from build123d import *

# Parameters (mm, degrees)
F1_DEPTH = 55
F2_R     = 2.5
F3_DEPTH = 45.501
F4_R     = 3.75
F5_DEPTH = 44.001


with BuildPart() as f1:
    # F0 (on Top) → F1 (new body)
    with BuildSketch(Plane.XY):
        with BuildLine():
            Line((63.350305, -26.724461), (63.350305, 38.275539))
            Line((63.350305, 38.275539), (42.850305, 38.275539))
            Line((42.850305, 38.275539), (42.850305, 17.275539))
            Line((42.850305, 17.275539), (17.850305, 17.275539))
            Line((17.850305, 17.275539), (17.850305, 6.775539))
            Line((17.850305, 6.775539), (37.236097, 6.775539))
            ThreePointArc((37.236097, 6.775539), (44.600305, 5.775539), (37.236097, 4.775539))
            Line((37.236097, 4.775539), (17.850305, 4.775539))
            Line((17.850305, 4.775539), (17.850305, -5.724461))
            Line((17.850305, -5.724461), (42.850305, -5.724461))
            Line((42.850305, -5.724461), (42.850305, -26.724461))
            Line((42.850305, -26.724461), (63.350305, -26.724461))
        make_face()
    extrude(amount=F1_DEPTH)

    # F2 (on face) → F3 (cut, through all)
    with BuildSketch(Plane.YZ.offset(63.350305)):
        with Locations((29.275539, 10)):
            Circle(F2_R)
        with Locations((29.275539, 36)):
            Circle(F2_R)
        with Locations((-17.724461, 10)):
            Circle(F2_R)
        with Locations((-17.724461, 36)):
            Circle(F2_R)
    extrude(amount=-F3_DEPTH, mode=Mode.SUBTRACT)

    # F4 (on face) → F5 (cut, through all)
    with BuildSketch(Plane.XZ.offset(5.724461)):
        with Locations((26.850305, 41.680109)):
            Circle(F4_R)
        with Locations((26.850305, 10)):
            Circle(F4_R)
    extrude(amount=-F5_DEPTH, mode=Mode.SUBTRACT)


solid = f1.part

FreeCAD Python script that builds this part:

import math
import FreeCAD as App
import Part
import Sketcher
Q = App.Units.Quantity

doc = App.newDocument("Part")
params = doc.addObject("Spreadsheet::Sheet", "Params")
for row, (alias, value) in enumerate([
    ("sketch1_width", "25 mm"),
    ("sketch1_height", "65 mm"),
    ("sketch1_height2", "21 mm"),
    ("sketch1_radius", "3.75 mm"),
    ("sketch1_width2", "20.5 mm"),
    ("pad1_length", "55 mm"),
    ("sketch2_diameter", "5 mm"),
    ("sketch3_diameter", "7.5 mm"),
], start=1):
    params.set(f"A{row}", alias)
    params.set(f"B{row}", "=" + value)
    params.setAlias(f"B{row}", alias)

body = doc.addObject("PartDesign::Body", "Body")

# Sketch on XY plane
sketch1 = doc.addObject("Sketcher::SketchObject", "Sketch")
body.addObject(sketch1)
sketch1.AttachmentSupport = (doc.XY_Plane, [""])
sketch1.MapMode = "FlatFace"
sketch1.addGeometry([
    Part.LineSegment(App.Vector(63.4, -26.7, 0), App.Vector(63.4, 38.3, 0)),  # 0
    Part.LineSegment(App.Vector(63.4, 38.3, 0), App.Vector(42.9, 38.3, 0)),  # 1
    Part.LineSegment(App.Vector(42.9, 38.3, 0), App.Vector(42.9, 17.3, 0)),  # 2
    Part.LineSegment(App.Vector(42.9, 17.3, 0), App.Vector(17.9, 17.3, 0)),  # 3
    Part.LineSegment(App.Vector(17.9, 17.3, 0), App.Vector(17.9, 6.8, 0)),  # 4
    Part.LineSegment(App.Vector(17.9, 6.8, 0), App.Vector(37.2, 6.8, 0)),  # 5
    Part.ArcOfCircle(Part.Circle(App.Vector(40.9, 5.8, 0), App.Vector(0, 0, 1), 3.7), math.radians(-165), math.radians(165)),  # 6
    Part.LineSegment(App.Vector(37.2, 4.8, 0), App.Vector(17.9, 4.8, 0)),  # 7
    Part.LineSegment(App.Vector(17.9, 4.8, 0), App.Vector(17.9, -5.7, 0)),  # 8
    Part.LineSegment(App.Vector(17.9, -5.7, 0), App.Vector(42.9, -5.7, 0)),  # 9
    Part.LineSegment(App.Vector(42.9, -5.7, 0), App.Vector(42.9, -26.7, 0)),  # 10
    Part.LineSegment(App.Vector(42.9, -26.7, 0), App.Vector(63.4, -26.7, 0)),  # 11
], False)
sketch1.addConstraint([
    Sketcher.Constraint("Coincident", 0, 2, 1, 1),
    Sketcher.Constraint("Coincident", 1, 2, 2, 1),
    Sketcher.Constraint("Coincident", 2, 2, 3, 1),
    Sketcher.Constraint("Coincident", 3, 2, 4, 1),
    Sketcher.Constraint("Coincident", 4, 2, 5, 1),
    Sketcher.Constraint("Coincident", 5, 2, 6, 2),
    Sketcher.Constraint("Coincident", 6, 1, 7, 1),
    Sketcher.Constraint("Coincident", 7, 2, 8, 1),
    Sketcher.Constraint("Coincident", 8, 2, 9, 1),
    Sketcher.Constraint("Coincident", 9, 2, 10, 1),
    Sketcher.Constraint("Coincident", 10, 2, 11, 1),
    Sketcher.Constraint("Coincident", 11, 2, 0, 1),
    Sketcher.Constraint("Vertical", 0),
    Sketcher.Constraint("Horizontal", 1),
    Sketcher.Constraint("Vertical", 2),
    Sketcher.Constraint("Horizontal", 3),
    Sketcher.Constraint("Vertical", 4),
    Sketcher.Constraint("Horizontal", 5),
    Sketcher.Constraint("Horizontal", 7),
    Sketcher.Constraint("Vertical", 8),
    Sketcher.Constraint("Horizontal", 9),
    Sketcher.Constraint("Vertical", 10),
    Sketcher.Constraint("Horizontal", 11),
    Sketcher.Constraint("Vertical", 5, 2, 6, 1),
    Sketcher.Constraint("Vertical", 4, 2, 7, 2),
    Sketcher.Constraint("Vertical", 2, 2, 9, 2),
    Sketcher.Constraint("Equal", 4, 8),
    Sketcher.Constraint("Equal", 2, 10),
    Sketcher.Constraint("DistanceX", 3, 2, 3, 1, Q("25 mm")),
    Sketcher.Constraint("DistanceY", 0, 1, 0, 2, Q("65 mm")),
    Sketcher.Constraint("DistanceY", 2, 2, 2, 1, Q("21 mm")),
    Sketcher.Constraint("Radius", 6, Q("3.75 mm")),
    Sketcher.Constraint("DistanceX", 1, 2, 1, 1, Q("20.5 mm")),
    Sketcher.Constraint("DistanceY", 4, 2, 4, 1, Q("10.5 mm")),
    Sketcher.Constraint("DistanceX", 6, 3, 1, 2, Q("2 mm")),
    Sketcher.Constraint("DistanceY", -1, 1, 6, 3, Q("5.775539 mm")),
    Sketcher.Constraint("DistanceX", -1, 1, 6, 3, Q("40.850305 mm")),
])
sketch1.setExpression("Constraints[28]", "Params.sketch1_width")
sketch1.setExpression("Constraints[29]", "Params.sketch1_height")
sketch1.setExpression("Constraints[30]", "Params.sketch1_height2")
sketch1.setExpression("Constraints[31]", "Params.sketch1_radius")
sketch1.setExpression("Constraints[32]", "Params.sketch1_width2")
pad1 = doc.addObject("PartDesign::Pad", "Pad")
body.addObject(pad1)
pad1.Profile = sketch1
pad1.setExpression("Length", "Params.pad1_length")

# Sketch on YZ plane
sketch2 = doc.addObject("Sketcher::SketchObject", "Sketch001")
body.addObject(sketch2)
sketch2.AttachmentSupport = (doc.YZ_Plane, [""])
sketch2.MapMode = "FlatFace"
sketch2.AttachmentOffset = App.Placement(App.Vector(0, 0, 63.350305), App.Rotation())
sketch2.addGeometry([
    Part.Circle(App.Vector(29.3, 10, 0), App.Vector(0, 0, 1), 2.5),
    Part.Circle(App.Vector(29.3, 36, 0), App.Vector(0, 0, 1), 2.5),
    Part.Circle(App.Vector(-17.7, 10, 0), App.Vector(0, 0, 1), 2.5),
    Part.Circle(App.Vector(-17.7, 36, 0), App.Vector(0, 0, 1), 2.5),
], False)
sketch2.addConstraint([
    Sketcher.Constraint("Equal", 0, 1),
    Sketcher.Constraint("Equal", 1, 2),
    Sketcher.Constraint("Equal", 2, 3),
    Sketcher.Constraint("Horizontal", 0, 3, 2, 3),
    Sketcher.Constraint("Horizontal", 1, 3, 3, 3),
    Sketcher.Constraint("Vertical", 0, 3, 1, 3),
    Sketcher.Constraint("Vertical", 2, 3, 3, 3),
    Sketcher.Constraint("Diameter", 0, Q("5 mm")),
    Sketcher.Constraint("DistanceY", -1, 1, 0, 3, Q("10 mm")),
    Sketcher.Constraint("DistanceY", -1, 1, 1, 3, Q("36 mm")),
    Sketcher.Constraint("DistanceX", 2, 3, 0, 3, Q("47 mm")),
    Sketcher.Constraint("DistanceX", -1, 1, 0, 3, Q("29.275539 mm")),
])
sketch2.setExpression("Constraints[7]", "Params.sketch2_diameter")
pocket1 = doc.addObject("PartDesign::Pocket", "Pocket")
body.addObject(pocket1)
pocket1.Profile = sketch2
pocket1.Type = "ThroughAll"

# Sketch on XZ plane
sketch3 = doc.addObject("Sketcher::SketchObject", "Sketch002")
body.addObject(sketch3)
sketch3.AttachmentSupport = (doc.XZ_Plane, [""])
sketch3.MapMode = "FlatFace"
sketch3.AttachmentOffset = App.Placement(App.Vector(0, 0, 5.724461), App.Rotation())
sketch3.addGeometry([
    Part.Circle(App.Vector(26.9, 41.7, 0), App.Vector(0, 0, 1), 3.8),
    Part.Circle(App.Vector(26.9, 10, 0), App.Vector(0, 0, 1), 3.8),
], False)
sketch3.addConstraint([
    Sketcher.Constraint("Equal", 0, 1),
    Sketcher.Constraint("Vertical", 0, 3, 1, 3),
    Sketcher.Constraint("Diameter", 0, Q("7.5 mm")),
    Sketcher.Constraint("DistanceY", -1, 1, 1, 3, Q("10 mm")),
    Sketcher.Constraint("DistanceY", -1, 1, 0, 3, Q("41.680109 mm")),
    Sketcher.Constraint("DistanceX", -1, 1, 0, 3, Q("26.850305 mm")),
])
sketch3.setExpression("Constraints[2]", "Params.sketch3_diameter")
pocket2 = doc.addObject("PartDesign::Pocket", "Pocket001")
body.addObject(pocket2)
pocket2.Profile = sketch3
pocket2.Type = "ThroughAll"

doc.recompute()
